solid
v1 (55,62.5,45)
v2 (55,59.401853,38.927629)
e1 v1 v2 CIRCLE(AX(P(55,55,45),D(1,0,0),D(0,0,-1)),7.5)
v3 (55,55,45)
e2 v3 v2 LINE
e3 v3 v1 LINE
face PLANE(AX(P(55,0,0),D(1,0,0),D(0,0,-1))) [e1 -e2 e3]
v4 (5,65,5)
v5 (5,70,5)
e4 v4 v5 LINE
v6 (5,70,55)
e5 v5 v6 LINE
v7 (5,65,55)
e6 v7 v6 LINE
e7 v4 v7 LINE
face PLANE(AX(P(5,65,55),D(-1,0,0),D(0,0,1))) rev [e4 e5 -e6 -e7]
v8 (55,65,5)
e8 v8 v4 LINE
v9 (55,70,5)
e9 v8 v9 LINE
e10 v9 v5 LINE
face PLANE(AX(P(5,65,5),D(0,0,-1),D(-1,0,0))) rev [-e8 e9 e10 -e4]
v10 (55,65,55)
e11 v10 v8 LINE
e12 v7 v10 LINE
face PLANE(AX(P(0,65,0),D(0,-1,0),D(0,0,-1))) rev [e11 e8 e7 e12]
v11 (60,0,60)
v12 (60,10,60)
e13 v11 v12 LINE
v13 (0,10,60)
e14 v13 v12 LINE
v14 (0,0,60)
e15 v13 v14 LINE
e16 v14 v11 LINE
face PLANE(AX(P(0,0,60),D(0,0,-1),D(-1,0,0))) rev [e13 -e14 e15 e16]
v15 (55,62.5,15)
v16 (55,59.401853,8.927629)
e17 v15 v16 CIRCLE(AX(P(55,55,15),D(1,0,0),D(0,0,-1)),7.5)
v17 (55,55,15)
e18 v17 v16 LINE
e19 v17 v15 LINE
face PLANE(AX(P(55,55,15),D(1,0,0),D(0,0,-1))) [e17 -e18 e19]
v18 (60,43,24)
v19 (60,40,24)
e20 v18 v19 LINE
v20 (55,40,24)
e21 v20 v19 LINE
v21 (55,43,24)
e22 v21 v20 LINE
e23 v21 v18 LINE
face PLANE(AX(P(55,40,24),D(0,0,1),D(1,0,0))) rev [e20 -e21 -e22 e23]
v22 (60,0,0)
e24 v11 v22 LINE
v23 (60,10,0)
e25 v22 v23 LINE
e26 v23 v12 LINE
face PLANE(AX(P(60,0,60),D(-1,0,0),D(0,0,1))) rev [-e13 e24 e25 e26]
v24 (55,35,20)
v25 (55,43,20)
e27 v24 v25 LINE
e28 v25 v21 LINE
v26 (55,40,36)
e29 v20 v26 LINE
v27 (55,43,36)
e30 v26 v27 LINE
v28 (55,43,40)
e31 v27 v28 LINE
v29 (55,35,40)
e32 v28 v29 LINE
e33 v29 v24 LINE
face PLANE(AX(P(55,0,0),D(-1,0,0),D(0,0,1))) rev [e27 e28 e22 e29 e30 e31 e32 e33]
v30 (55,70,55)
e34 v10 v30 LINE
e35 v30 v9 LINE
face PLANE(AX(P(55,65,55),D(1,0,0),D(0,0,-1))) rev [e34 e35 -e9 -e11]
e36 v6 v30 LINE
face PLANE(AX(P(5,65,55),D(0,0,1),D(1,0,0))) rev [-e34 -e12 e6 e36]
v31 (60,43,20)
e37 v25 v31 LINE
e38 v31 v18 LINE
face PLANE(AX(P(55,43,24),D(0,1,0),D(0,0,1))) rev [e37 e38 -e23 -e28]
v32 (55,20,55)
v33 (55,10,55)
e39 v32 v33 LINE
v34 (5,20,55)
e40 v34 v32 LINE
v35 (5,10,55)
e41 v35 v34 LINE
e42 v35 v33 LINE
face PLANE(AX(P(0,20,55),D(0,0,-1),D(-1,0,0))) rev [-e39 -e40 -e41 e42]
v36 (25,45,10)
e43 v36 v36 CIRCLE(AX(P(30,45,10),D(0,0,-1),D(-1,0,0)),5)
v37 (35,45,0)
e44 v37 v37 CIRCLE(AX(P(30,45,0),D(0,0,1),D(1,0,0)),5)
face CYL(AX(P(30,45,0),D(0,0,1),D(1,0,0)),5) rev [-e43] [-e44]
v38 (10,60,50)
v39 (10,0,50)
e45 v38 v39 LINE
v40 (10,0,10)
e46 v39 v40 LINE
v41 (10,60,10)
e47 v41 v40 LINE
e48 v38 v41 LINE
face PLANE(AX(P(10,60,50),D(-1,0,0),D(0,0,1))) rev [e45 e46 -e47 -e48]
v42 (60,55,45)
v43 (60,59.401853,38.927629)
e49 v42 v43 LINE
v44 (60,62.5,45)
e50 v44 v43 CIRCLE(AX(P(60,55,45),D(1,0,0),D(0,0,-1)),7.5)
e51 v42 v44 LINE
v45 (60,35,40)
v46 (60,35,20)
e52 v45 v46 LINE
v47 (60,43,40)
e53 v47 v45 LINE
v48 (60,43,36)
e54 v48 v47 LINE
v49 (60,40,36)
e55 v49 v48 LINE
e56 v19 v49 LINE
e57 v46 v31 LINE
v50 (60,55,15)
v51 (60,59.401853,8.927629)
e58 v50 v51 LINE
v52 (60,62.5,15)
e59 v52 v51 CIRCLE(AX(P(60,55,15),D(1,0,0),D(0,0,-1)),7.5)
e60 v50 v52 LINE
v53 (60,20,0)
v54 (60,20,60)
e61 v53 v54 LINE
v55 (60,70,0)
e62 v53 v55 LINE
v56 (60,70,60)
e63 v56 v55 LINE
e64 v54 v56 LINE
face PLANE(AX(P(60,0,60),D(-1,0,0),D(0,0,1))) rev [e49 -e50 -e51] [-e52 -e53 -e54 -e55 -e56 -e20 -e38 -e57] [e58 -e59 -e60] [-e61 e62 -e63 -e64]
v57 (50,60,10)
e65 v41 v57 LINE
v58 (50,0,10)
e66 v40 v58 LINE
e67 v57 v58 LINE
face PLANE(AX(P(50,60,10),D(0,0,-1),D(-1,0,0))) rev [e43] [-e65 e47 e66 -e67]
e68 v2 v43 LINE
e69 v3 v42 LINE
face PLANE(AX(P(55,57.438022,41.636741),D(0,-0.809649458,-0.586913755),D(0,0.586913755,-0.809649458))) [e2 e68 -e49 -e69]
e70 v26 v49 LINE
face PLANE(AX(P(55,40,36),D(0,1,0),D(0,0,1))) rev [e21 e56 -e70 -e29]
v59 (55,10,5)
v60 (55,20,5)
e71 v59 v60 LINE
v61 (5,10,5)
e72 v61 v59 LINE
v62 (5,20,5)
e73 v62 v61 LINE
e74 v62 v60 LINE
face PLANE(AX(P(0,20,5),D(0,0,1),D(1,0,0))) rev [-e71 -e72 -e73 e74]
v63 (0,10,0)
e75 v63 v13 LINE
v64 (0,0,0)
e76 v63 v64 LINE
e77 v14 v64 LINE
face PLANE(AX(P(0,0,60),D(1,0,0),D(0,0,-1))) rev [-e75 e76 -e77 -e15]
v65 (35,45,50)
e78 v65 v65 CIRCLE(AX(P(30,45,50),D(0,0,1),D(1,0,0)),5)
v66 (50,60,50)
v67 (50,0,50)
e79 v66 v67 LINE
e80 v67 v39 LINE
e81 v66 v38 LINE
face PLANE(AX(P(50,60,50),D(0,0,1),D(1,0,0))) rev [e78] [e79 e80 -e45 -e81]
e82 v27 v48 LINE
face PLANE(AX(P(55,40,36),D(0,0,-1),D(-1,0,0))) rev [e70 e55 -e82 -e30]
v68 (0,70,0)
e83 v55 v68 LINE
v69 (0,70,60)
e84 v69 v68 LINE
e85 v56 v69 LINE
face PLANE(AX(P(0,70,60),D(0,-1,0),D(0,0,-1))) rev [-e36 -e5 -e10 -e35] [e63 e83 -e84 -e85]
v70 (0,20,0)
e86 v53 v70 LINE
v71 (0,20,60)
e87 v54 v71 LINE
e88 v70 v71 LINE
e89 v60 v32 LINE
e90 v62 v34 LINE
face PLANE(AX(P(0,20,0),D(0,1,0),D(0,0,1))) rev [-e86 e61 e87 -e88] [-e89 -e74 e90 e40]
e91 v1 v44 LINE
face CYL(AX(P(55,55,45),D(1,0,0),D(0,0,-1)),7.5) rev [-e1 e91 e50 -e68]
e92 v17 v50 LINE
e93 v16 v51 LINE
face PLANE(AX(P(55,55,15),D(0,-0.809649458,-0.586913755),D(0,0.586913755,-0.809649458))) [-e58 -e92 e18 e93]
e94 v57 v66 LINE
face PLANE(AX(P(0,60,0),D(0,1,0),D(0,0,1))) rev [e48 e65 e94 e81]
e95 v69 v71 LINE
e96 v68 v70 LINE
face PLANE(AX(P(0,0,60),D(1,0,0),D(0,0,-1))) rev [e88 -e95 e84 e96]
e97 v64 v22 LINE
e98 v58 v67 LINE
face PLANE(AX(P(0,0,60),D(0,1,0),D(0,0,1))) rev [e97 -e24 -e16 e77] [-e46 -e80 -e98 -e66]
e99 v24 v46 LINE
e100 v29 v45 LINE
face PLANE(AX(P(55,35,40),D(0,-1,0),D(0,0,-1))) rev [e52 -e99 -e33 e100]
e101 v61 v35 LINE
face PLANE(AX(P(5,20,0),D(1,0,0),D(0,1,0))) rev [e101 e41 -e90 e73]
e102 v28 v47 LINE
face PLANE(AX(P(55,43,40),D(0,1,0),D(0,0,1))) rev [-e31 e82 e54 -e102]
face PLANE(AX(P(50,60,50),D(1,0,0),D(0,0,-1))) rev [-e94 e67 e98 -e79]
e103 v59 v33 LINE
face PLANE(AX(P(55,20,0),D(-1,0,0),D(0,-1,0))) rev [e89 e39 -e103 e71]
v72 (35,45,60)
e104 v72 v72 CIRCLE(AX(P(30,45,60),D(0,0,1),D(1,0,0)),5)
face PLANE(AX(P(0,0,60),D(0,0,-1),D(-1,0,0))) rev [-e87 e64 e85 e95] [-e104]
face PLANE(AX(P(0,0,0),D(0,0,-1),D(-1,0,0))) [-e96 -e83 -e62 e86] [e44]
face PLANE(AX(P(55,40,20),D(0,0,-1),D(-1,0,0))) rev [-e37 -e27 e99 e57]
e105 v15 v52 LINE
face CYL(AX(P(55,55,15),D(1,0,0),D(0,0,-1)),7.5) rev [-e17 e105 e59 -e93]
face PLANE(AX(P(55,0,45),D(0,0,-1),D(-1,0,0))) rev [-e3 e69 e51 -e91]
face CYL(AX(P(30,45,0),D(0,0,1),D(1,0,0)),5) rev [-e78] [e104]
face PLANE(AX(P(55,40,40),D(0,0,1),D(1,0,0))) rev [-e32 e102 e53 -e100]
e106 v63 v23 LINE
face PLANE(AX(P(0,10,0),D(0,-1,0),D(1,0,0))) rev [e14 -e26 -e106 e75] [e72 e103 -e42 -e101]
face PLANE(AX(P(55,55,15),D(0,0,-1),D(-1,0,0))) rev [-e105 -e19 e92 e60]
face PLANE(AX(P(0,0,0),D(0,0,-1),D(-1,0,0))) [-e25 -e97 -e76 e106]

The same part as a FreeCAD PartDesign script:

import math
import FreeCAD as App
import Part
import Sketcher


def add_polygon(sketch, points):
    """Adds a closed chain of lines whose ends are joined by coincident constraints."""
    first, n = sketch.GeometryCount, len(points)
    for a, b in zip(points, points[1:] + points[:1]):
        sketch.addGeometry(Part.LineSegment(App.Vector(*a, 0), App.Vector(*b, 0)), False)
    for i in range(n):
        sketch.addConstraint(Sketcher.Constraint("Coincident", first + i, 2, first + (i + 1) % n, 1))

doc = App.newDocument("Part")
body = doc.addObject("PartDesign::Body", "Body")

sketch1 = doc.addObject("Sketcher::SketchObject", "Sketch")
body.addObject(sketch1)
sketch1.AttachmentSupport = (doc.XY_Plane, [""])
sketch1.MapMode = "FlatFace"
add_polygon(sketch1, [(0, 70), (0, 0), (60, 0), (60, 70)])
sketch1.addConstraint([
    Sketcher.Constraint("Vertical", 0),
    Sketcher.Constraint("Horizontal", 1),
    Sketcher.Constraint("Vertical", 2),
    Sketcher.Constraint("Horizontal", 3),
    Sketcher.Constraint("Coincident", 0, 2, -1, 1),
    Sketcher.Constraint("DistanceX", 1, 1, 1, 2, 60.0),
    Sketcher.Constraint("DistanceY", 0, 2, 0, 1, 70.0),
])
pad1 = doc.addObject("PartDesign::Pad", "Pad")
body.addObject(pad1)
pad1.Profile = sketch1
pad1.Length = 60

sketch2 = doc.addObject("Sketcher::SketchObject", "Sketch001")
body.addObject(sketch2)
sketch2.AttachmentSupport = (doc.XZ_Plane, [""])
sketch2.MapMode = "FlatFace"
sketch2.AttachmentOffset = App.Placement(App.Vector(0, 0, -70), App.Rotation())
add_polygon(sketch2, [(5, 5), (5, 55), (55, 55), (55, 5)])
sketch2.addConstraint([
    Sketcher.Constraint("Vertical", 0),
    Sketcher.Constraint("Horizontal", 1),
    Sketcher.Constraint("Vertical", 2),
    Sketcher.Constraint("Horizontal", 3),
    Sketcher.Constraint("Equal", 3, 0),
    Sketcher.Constraint("DistanceX", 1, 1, 1, 2, 50.0),
    Sketcher.Constraint("DistanceX", -1, 1, 0, 2, 5.0),
    Sketcher.Constraint("DistanceY", -1, 1, 0, 2, 55.0),
])
pocket1 = doc.addObject("PartDesign::Pocket", "Pocket")
body.addObject(pocket1)
pocket1.Profile = sketch2
pocket1.Length = 5
pocket1.Reversed = True

sketch3 = doc.addObject("Sketcher::SketchObject", "Sketch002")
body.addObject(sketch3)
sketch3.AttachmentSupport = (doc.XY_Plane, [""])
sketch3.MapMode = "FlatFace"
sketch3.AttachmentOffset = App.Placement(App.Vector(0, 0, 60), App.Rotation())
add_polygon(sketch3, [(0, 20), (0, 10), (5, 10), (5, 20)])
add_polygon(sketch3, [(55, 20), (55, 10), (60, 10), (60, 20)])
sketch3.addConstraint([
    Sketcher.Constraint("Vertical", 0),
    Sketcher.Constraint("Horizontal", 1),
    Sketcher.Constraint("Vertical", 2),
    Sketcher.Constraint("Horizontal", 3),
    Sketcher.Constraint("Vertical", 4),
    Sketcher.Constraint("Horizontal", 5),
    Sketcher.Constraint("Vertical", 6),
    Sketcher.Constraint("Horizontal", 7),
    Sketcher.Constraint("PointOnObject", 0, 2, -2),
    Sketcher.Constraint("Horizontal", 1, 2, 4, 2),
    Sketcher.Constraint("Horizontal", 3, 2, 6, 2),
    Sketcher.Constraint("Equal", 3, 5),
    Sketcher.Constraint("DistanceX", 1, 1, 1, 2, 5.0),
    Sketcher.Constraint("DistanceY", 0, 2, 0, 1, 10.0),
    Sketcher.Constraint("DistanceY", -1, 1, 0, 2, 10.0),
    Sketcher.Constraint("DistanceX", -1, 1, 4, 2, 55.0),
])
pocket2 = doc.addObject("PartDesign::Pocket", "Pocket001")
body.addObject(pocket2)
pocket2.Profile = sketch3
pocket2.Type = "ThroughAll"

sketch4 = doc.addObject("Sketcher::SketchObject", "Sketch003")
body.addObject(sketch4)
sketch4.AttachmentSupport = (doc.YZ_Plane, [""])
sketch4.MapMode = "FlatFace"
sketch4.AttachmentOffset = App.Placement(App.Vector(0, 0, 60), App.Rotation())
add_polygon(sketch4, [(20, 60), (10, 60), (10, 55), (20, 55)])
add_polygon(sketch4, [(20, 5), (10, 5), (10, 0), (20, 0)])
sketch4.addConstraint([
    Sketcher.Constraint("Horizontal", 0),
    Sketcher.Constraint("Vertical", 1),
    Sketcher.Constraint("Horizontal", 2),
    Sketcher.Constraint("Vertical", 3),
    Sketcher.Constraint("Horizontal", 4),
    Sketcher.Constraint("Vertical", 5),
    Sketcher.Constraint("Horizontal", 6),
    Sketcher.Constraint("Vertical", 7),
    Sketcher.Constraint("PointOnObject", 5, 2, -1),
    Sketcher.Constraint("Vertical", 1, 2, 4, 2),
    Sketcher.Constraint("Vertical", 3, 2, 6, 2),
    Sketcher.Constraint("Equal", 3, 5),
    Sketcher.Constraint("DistanceX", 0, 2, 0, 1, 10.0),
    Sketcher.Constraint("DistanceY", 1, 2, 1, 1, 5.0),
    Sketcher.Constraint("DistanceX", -1, 1, 0, 2, 10.0),
    Sketcher.Constraint("DistanceY", -1, 1, 0, 2, 60.0),
])
pocket3 = doc.addObject("PartDesign::Pocket", "Pocket002")
body.addObject(pocket3)
pocket3.Profile = sketch4
pocket3.Type = "ThroughAll"

sketch5 = doc.addObject("Sketcher::SketchObject", "Sketch004")
body.addObject(sketch5)
sketch5.AttachmentSupport = (doc.YZ_Plane, [""])
sketch5.MapMode = "FlatFace"
sketch5.AttachmentOffset = App.Placement(App.Vector(0, 0, 60), App.Rotation())
add_polygon(sketch5, [(40, 24), (40, 36), (43, 36), (43, 40), (35, 40), (35, 20), (43, 20), (43, 24)])
sketch5.addConstraint([
    Sketcher.Constraint("Vertical", 0),
    Sketcher.Constraint("Horizontal", 1),
    Sketcher.Constraint("Vertical", 2),
    Sketcher.Constraint("Horizontal", 3),
    Sketcher.Constraint("Vertical", 4),
    Sketcher.Constraint("Horizontal", 5),
    Sketcher.Constraint("Vertical", 6),
    Sketcher.Constraint("Horizontal", 7),
    Sketcher.Constraint("Vertical", 2, 2, 5, 2),
    Sketcher.Constraint("Equal", 2, 6),
    Sketcher.Constraint("DistanceX", 1, 1, 1, 2, 3.0),
    Sketcher.Constraint("DistanceX", 3, 2, 3, 1, 8.0),
    Sketcher.Constraint("DistanceY", 0, 1, 0, 2, 12.0),
    Sketcher.Constraint("DistanceY", 2, 1, 2, 2, 4.0),
    Sketcher.Constraint("DistanceX", -1, 1, 0, 2, 40.0),
    Sketcher.Constraint("DistanceY", -1, 1, 0, 2, 36.0),
])
pocket4 = doc.addObject("PartDesign::Pocket", "Pocket003")
body.addObject(pocket4)
pocket4.Profile = sketch5
pocket4.Length = 5

sketch6 = doc.addObject("Sketcher::SketchObject", "Sketch005")
body.addObject(sketch6)
sketch6.AttachmentSupport = (doc.YZ_Plane, [""])
sketch6.MapMode = "FlatFace"
sketch6.AttachmentOffset = App.Placement(App.Vector(0, 0, 60), App.Rotation())
sketch6.addGeometry([
    Part.LineSegment(App.Vector(55, 45, 0), App.Vector(62, 45, 0)),
    Part.ArcOfCircle(Part.Circle(App.Vector(55, 45, 0), App.Vector(0, 0, 1), 8), math.radians(0), math.radians(306)),
    Part.LineSegment(App.Vector(59, 39, 0), App.Vector(55, 45, 0)),
    Part.LineSegment(App.Vector(59, 9, 0), App.Vector(55, 15, 0)),
    Part.LineSegment(App.Vector(55, 15, 0), App.Vector(62, 15, 0)),
    Part.ArcOfCircle(Part.Circle(App.Vector(55, 15, 0), App.Vector(0, 0, 1), 8), math.radians(0), math.radians(306)),
], False)
sketch6.addConstraint([
    Sketcher.Constraint("Coincident", 0, 2, 1, 1),
    Sketcher.Constraint("Coincident", 1, 2, 2, 1),
    Sketcher.Constraint("Coincident", 2, 2, 0, 1),
    Sketcher.Constraint("Coincident", 3, 2, 4, 1),
    Sketcher.Constraint("Coincident", 4, 2, 5, 1),
    Sketcher.Constraint("Coincident", 5, 2, 3, 1),
    Sketcher.Constraint("Horizontal", 0),
    Sketcher.Constraint("Horizontal", 4),
    Sketcher.Constraint("Coincident", 2, 2, 1, 3),
    Sketcher.Constraint("Coincident", 3, 2, 5, 3),
    Sketcher.Constraint("Equal", 1, 5),
    Sketcher.Constraint("Parallel", 2, 3),
    Sketcher.Constraint("Vertical", 1, 3, 5, 3),
    Sketcher.Constraint("Radius", 1, 7.5),
    Sketcher.Constraint("DistanceX", -1, 1, 1, 3, 55.0),
    Sketcher.Constraint("DistanceY", -1, 1, 1, 3, 45.0),
    Sketcher.Constraint("DistanceY", -1, 1, 5, 3, 15.0),
    Sketcher.Constraint("DistanceY", -1, 1, 1, 2, 38.927629),
])
pocket5 = doc.addObject("PartDesign::Pocket", "Pocket004")
body.addObject(pocket5)
pocket5.Profile = sketch6
pocket5.Length = 5

sketch7 = doc.addObject("Sketcher::SketchObject", "Sketch006")
body.addObject(sketch7)
sketch7.AttachmentSupport = (doc.XZ_Plane, [""])
sketch7.MapMode = "FlatFace"
add_polygon(sketch7, [(50, 10), (50, 50), (10, 50), (10, 10)])
sketch7.addConstraint([
    Sketcher.Constraint("Vertical", 0),
    Sketcher.Constraint("Horizontal", 1),
    Sketcher.Constraint("Vertical", 2),
    Sketcher.Constraint("Horizontal", 3),
    Sketcher.Constraint("Equal", 3, 0),
    Sketcher.Constraint("DistanceX", 1, 2, 1, 1, 40.0),
    Sketcher.Constraint("DistanceX", -1, 1, 0, 2, 50.0),
    Sketcher.Constraint("DistanceY", -1, 1, 0, 2, 50.0),
])
pocket6 = doc.addObject("PartDesign::Pocket", "Pocket005")
body.addObject(pocket6)
pocket6.Profile = sketch7
pocket6.Length = 60

sketch8 = doc.addObject("Sketcher::SketchObject", "Sketch007")
body.addObject(sketch8)
sketch8.AttachmentSupport = (doc.XY_Plane, [""])
sketch8.MapMode = "FlatFace"
sketch8.AttachmentOffset = App.Placement(App.Vector(0, 0, 60), App.Rotation())
sketch8.addGeometry(Part.Circle(App.Vector(30, 45, 0), App.Vector(0, 0, 1), 5), False)
sketch8.addConstraint([
    Sketcher.Constraint("Diameter", 0, 10.0),
    Sketcher.Constraint("DistanceX", -1, 1, 0, 3, 30.0),
    Sketcher.Constraint("DistanceY", -1, 1, 0, 3, 45.0),
])
pocket7 = doc.addObject("PartDesign::Pocket", "Pocket006")
body.addObject(pocket7)
pocket7.Profile = sketch8
pocket7.Type = "ThroughAll"

doc.recompute()
